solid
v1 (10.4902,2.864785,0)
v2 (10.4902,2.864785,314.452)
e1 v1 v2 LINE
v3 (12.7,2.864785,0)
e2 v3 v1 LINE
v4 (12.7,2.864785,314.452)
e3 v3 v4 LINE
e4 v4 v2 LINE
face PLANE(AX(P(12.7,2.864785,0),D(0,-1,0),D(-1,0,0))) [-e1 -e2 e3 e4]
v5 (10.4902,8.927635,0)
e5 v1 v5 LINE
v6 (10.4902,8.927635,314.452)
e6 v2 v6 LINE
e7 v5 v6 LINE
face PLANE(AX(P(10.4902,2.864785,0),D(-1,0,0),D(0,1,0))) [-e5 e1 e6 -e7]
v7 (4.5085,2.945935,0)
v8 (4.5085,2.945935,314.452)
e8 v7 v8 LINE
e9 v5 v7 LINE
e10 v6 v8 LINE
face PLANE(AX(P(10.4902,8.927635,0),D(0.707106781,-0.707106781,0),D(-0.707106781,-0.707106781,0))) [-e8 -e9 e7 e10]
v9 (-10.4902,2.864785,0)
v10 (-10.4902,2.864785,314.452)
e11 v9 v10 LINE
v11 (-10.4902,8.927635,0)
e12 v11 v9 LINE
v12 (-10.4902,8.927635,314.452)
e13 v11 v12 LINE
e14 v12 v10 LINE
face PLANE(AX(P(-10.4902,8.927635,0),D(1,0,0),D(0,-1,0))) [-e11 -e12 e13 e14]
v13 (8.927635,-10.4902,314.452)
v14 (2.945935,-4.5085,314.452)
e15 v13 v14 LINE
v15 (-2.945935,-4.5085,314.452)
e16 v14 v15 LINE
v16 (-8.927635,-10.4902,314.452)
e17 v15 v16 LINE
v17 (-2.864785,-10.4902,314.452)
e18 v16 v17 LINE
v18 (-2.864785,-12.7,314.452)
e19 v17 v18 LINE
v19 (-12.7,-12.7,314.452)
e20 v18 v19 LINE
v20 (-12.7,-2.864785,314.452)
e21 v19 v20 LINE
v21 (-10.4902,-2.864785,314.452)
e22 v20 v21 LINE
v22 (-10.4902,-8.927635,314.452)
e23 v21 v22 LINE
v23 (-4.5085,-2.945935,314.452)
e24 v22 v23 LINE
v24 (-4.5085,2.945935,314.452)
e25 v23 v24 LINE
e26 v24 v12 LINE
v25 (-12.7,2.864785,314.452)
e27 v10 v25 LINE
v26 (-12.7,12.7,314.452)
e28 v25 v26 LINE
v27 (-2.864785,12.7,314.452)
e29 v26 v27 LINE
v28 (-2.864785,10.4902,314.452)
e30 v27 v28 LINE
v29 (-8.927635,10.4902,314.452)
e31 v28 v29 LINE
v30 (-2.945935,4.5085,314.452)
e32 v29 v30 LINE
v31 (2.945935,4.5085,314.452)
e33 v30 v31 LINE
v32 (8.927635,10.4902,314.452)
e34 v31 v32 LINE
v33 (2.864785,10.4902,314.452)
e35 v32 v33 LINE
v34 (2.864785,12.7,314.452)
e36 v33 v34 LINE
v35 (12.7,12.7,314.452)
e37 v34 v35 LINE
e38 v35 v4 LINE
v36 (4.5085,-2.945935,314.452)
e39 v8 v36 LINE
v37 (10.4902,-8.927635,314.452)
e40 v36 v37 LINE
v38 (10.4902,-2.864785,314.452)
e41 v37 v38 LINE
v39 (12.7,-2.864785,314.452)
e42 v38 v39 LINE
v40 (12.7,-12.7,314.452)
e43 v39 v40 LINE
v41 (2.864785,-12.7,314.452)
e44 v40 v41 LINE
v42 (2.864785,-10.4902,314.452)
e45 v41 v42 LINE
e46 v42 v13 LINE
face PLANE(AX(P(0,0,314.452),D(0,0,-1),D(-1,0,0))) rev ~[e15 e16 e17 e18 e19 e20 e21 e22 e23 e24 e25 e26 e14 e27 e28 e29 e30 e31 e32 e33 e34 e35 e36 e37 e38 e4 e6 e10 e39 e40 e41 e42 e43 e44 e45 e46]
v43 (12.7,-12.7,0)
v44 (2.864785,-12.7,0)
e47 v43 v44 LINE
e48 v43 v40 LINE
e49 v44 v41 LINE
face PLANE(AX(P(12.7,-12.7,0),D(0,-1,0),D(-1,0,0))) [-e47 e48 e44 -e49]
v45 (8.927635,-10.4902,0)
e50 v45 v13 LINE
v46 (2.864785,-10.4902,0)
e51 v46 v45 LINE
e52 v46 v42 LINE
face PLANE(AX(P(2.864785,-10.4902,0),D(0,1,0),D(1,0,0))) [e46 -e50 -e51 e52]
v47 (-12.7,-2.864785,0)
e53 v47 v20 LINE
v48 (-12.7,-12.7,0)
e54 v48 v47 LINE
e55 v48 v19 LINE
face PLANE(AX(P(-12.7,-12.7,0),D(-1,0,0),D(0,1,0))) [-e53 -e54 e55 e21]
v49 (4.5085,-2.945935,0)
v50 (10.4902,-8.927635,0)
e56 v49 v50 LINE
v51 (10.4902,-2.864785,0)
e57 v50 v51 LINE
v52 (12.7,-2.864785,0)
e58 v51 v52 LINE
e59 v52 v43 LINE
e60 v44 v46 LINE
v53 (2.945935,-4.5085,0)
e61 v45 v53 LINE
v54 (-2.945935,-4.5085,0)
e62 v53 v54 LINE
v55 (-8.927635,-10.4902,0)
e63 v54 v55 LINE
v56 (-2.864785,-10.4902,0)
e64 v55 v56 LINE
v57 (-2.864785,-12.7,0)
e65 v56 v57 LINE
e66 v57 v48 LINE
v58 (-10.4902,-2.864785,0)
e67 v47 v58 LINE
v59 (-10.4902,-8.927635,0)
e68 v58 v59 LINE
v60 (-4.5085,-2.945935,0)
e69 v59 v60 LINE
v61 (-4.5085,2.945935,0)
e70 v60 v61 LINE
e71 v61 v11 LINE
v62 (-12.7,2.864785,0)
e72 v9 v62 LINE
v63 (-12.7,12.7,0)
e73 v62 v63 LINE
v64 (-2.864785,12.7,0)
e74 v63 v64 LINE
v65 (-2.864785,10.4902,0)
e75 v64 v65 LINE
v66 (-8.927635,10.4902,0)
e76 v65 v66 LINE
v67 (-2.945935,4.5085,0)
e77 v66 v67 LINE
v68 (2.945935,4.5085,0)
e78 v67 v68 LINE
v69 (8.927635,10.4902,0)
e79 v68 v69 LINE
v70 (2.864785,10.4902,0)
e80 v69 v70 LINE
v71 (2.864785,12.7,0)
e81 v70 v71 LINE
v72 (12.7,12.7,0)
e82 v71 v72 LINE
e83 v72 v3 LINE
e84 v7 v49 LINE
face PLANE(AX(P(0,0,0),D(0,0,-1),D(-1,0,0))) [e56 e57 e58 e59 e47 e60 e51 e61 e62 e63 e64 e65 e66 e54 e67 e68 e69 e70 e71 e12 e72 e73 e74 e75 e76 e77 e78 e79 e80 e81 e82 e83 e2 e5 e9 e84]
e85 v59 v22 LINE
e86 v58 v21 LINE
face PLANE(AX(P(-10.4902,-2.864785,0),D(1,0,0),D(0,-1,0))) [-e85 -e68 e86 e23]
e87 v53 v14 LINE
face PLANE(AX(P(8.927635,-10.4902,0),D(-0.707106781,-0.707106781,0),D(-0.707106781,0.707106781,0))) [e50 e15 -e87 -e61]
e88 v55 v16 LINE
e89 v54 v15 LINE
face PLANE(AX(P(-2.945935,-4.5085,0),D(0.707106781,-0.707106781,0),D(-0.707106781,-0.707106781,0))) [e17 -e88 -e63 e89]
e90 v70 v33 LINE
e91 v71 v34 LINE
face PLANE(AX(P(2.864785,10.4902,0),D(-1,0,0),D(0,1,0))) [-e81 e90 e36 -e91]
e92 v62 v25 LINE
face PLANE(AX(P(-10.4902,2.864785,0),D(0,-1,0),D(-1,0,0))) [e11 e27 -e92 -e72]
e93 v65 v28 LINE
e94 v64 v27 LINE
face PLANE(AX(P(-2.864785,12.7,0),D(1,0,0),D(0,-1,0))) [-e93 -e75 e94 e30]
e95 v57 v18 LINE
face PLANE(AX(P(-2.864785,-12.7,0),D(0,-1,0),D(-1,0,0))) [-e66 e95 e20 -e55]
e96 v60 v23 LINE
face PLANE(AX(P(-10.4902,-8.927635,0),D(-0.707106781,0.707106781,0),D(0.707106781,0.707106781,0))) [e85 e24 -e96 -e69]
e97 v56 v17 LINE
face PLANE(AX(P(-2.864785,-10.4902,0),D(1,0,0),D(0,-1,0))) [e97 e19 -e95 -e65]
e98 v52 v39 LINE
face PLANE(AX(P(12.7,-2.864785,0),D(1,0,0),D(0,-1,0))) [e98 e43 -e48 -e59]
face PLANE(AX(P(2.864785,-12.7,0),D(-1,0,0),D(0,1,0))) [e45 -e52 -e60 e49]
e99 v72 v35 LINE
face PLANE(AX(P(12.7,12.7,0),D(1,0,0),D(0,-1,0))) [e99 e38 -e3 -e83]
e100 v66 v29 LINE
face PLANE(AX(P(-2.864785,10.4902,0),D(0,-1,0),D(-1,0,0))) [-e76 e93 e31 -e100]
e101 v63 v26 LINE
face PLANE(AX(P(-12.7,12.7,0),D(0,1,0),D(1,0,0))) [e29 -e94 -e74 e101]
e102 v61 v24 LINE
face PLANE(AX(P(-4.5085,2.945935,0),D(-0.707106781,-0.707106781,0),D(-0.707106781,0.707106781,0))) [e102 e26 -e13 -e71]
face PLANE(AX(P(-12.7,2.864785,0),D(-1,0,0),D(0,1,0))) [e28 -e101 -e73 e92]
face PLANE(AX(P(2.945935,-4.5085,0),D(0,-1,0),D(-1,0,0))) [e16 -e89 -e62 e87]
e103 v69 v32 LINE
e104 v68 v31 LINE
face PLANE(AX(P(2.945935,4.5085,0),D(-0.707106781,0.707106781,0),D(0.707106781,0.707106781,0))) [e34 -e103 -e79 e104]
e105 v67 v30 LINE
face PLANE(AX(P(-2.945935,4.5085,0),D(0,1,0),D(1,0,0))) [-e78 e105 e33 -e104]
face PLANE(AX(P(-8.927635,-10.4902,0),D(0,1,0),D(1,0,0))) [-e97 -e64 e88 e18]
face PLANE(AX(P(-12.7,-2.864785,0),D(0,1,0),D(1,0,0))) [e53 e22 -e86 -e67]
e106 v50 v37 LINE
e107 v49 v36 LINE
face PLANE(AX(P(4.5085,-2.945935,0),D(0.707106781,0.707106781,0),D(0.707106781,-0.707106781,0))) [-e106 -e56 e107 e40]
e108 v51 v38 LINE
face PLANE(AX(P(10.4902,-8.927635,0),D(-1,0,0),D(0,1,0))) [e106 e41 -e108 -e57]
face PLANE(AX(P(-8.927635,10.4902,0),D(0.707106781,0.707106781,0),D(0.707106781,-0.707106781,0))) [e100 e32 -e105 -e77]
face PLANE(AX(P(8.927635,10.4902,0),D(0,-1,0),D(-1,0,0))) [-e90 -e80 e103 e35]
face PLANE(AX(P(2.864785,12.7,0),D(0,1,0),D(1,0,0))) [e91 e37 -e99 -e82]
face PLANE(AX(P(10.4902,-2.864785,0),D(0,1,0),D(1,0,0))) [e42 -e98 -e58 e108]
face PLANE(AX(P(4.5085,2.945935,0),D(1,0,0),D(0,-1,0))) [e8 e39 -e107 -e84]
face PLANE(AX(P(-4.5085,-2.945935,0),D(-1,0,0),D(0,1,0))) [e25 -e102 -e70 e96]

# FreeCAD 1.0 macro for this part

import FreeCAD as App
import Part
import Sketcher
from FreeCAD import Vector
Q = App.Units.Quantity

doc = App.newDocument("Part")
body = doc.addObject("PartDesign::Body", "Body")

sketch1 = doc.addObject("Sketcher::SketchObject", "Sketch")
body.addObject(sketch1)
sketch1.AttachmentSupport = (doc.XY_Plane, [""])
sketch1.MapMode = "FlatFace"
sketch1.addGeometry([
    Part.LineSegment(Vector(-2.9, 12.7, 0), Vector(-12.7, 12.7, 0)),
    Part.LineSegment(Vector(-12.7, 12.7, 0), Vector(-12.7, 2.9, 0)),
    Part.LineSegment(Vector(-12.7, 2.9, 0), Vector(-10.5, 2.9, 0)),
    Part.LineSegment(Vector(-10.5, 2.9, 0), Vector(-10.5, 8.9, 0)),
    Part.LineSegment(Vector(-10.5, 8.9, 0), Vector(-4.5, 2.9, 0)),
    Part.LineSegment(Vector(-4.5, 2.9, 0), Vector(-4.5, -2.9, 0)),
    Part.LineSegment(Vector(-4.5, -2.9, 0), Vector(-10.5, -8.9, 0)),
    Part.LineSegment(Vector(-10.5, -8.9, 0), Vector(-10.5, -2.9, 0)),
    Part.LineSegment(Vector(-10.5, -2.9, 0), Vector(-12.7, -2.9, 0)),
    Part.LineSegment(Vector(-12.7, -2.9, 0), Vector(-12.7, -12.7, 0)),
    Part.LineSegment(Vector(-12.7, -12.7, 0), Vector(-2.9, -12.7, 0)),
    Part.LineSegment(Vector(-2.9, -12.7, 0), Vector(-2.9, -10.5, 0)),
    Part.LineSegment(Vector(-2.9, -10.5, 0), Vector(-8.9, -10.5, 0)),
    Part.LineSegment(Vector(-8.9, -10.5, 0), Vector(-2.9, -4.5, 0)),
    Part.LineSegment(Vector(-2.9, -4.5, 0), Vector(2.9, -4.5, 0)),
    Part.LineSegment(Vector(2.9, -4.5, 0), Vector(8.9, -10.5, 0)),
    Part.LineSegment(Vector(8.9, -10.5, 0), Vector(2.9, -10.5, 0)),
    Part.LineSegment(Vector(2.9, -10.5, 0), Vector(2.9, -12.7, 0)),
    Part.LineSegment(Vector(2.9, -12.7, 0), Vector(12.7, -12.7, 0)),
    Part.LineSegment(Vector(12.7, -12.7, 0), Vector(12.7, -2.9, 0)),
    Part.LineSegment(Vector(12.7, -2.9, 0), Vector(10.5, -2.9, 0)),
    Part.LineSegment(Vector(10.5, -2.9, 0), Vector(10.5, -8.9, 0)),
    Part.LineSegment(Vector(10.5, -8.9, 0), Vector(4.5, -2.9, 0)),
    Part.LineSegment(Vector(4.5, -2.9, 0), Vector(4.5, 2.9, 0)),
    Part.LineSegment(Vector(4.5, 2.9, 0), Vector(10.5, 8.9, 0)),
    Part.LineSegment(Vector(10.5, 8.9, 0), Vector(10.5, 2.9, 0)),
    Part.LineSegment(Vector(10.5, 2.9, 0), Vector(12.7, 2.9, 0)),
    Part.LineSegment(Vector(12.7, 2.9, 0), Vector(12.7, 12.7, 0)),
    Part.LineSegment(Vector(12.7, 12.7, 0), Vector(2.9, 12.7, 0)),
    Part.LineSegment(Vector(2.9, 12.7, 0), Vector(2.9, 10.5, 0)),
    Part.LineSegment(Vector(2.9, 10.5, 0), Vector(8.9, 10.5, 0)),
    Part.LineSegment(Vector(8.9, 10.5, 0), Vector(2.9, 4.5, 0)),
    Part.LineSegment(Vector(2.9, 4.5, 0), Vector(-2.9, 4.5, 0)),
    Part.LineSegment(Vector(-2.9, 4.5, 0), Vector(-8.9, 10.5, 0)),
    Part.LineSegment(Vector(-8.9, 10.5, 0), Vector(-2.9, 10.5, 0)),
    Part.LineSegment(Vector(-2.9, 10.5, 0), Vector(-2.9, 12.7, 0)),
], False)
sketch1.addConstraint([
    Sketcher.Constraint("Coincident", 0, 2, 1, 1),
    Sketcher.Constraint("Coincident", 1, 2, 2, 1),
    Sketcher.Constraint("Coincident", 2, 2, 3, 1),
    Sketcher.Constraint("Coincident", 3, 2, 4, 1),
    Sketcher.Constraint("Coincident", 4, 2, 5, 1),
    Sketcher.Constraint("Coincident", 5, 2, 6, 1),
    Sketcher.Constraint("Coincident", 6, 2, 7, 1),
    Sketcher.Constraint("Coincident", 7, 2, 8, 1),
    Sketcher.Constraint("Coincident", 8, 2, 9, 1),
    Sketcher.Constraint("Coincident", 9, 2, 10, 1),
    Sketcher.Constraint("Coincident", 10, 2, 11, 1),
    Sketcher.Constraint("Coincident", 11, 2, 12, 1),
    Sketcher.Constraint("Coincident", 12, 2, 13, 1),
    Sketcher.Constraint("Coincident", 13, 2, 14, 1),
    Sketcher.Constraint("Coincident", 14, 2, 15, 1),
    Sketcher.Constraint("Coincident", 15, 2, 16, 1),
    Sketcher.Constraint("Coincident", 16, 2, 17, 1),
    Sketcher.Constraint("Coincident", 17, 2, 18, 1),
    Sketcher.Constraint("Coincident", 18, 2, 19, 1),
    Sketcher.Constraint("Coincident", 19, 2, 20, 1),
    Sketcher.Constraint("Coincident", 20, 2, 21, 1),
    Sketcher.Constraint("Coincident", 21, 2, 22, 1),
    Sketcher.Constraint("Coincident", 22, 2, 23, 1),
    Sketcher.Constraint("Coincident", 23, 2, 24, 1),
    Sketcher.Constraint("Coincident", 24, 2, 25, 1),
    Sketcher.Constraint("Coincident", 25, 2, 26, 1),
    Sketcher.Constraint("Coincident", 26, 2, 27, 1),
    Sketcher.Constraint("Coincident", 27, 2, 28, 1),
    Sketcher.Constraint("Coincident", 28, 2, 29, 1),
    Sketcher.Constraint("Coincident", 29, 2, 30, 1),
    Sketcher.Constraint("Coincident", 30, 2, 31, 1),
    Sketcher.Constraint("Coincident", 31, 2, 32, 1),
    Sketcher.Constraint("Coincident", 32, 2, 33, 1),
    Sketcher.Constraint("Coincident", 33, 2, 34, 1),
    Sketcher.Constraint("Coincident", 34, 2, 35, 1),
    Sketcher.Constraint("Coincident", 35, 2, 0, 1),
    Sketcher.Constraint("Horizontal", 0),
    Sketcher.Constraint("Vertical", 1),
    Sketcher.Constraint("Horizontal", 2),
    Sketcher.Constraint("Vertical", 3),
    Sketcher.Constraint("Vertical", 5),
    Sketcher.Constraint("Vertical", 7),
    Sketcher.Constraint("Horizontal", 8),
    Sketcher.Constraint("Vertical", 9),
    Sketcher.Constraint("Horizontal", 10),
    Sketcher.Constraint("Vertical", 11),
    Sketcher.Constraint("Horizontal", 12),
    Sketcher.Constraint("Horizontal", 14),
    Sketcher.Constraint("Horizontal", 16),
    Sketcher.Constraint("Vertical", 17),
    Sketcher.Constraint("Horizontal", 18),
    Sketcher.Constraint("Vertical", 19),
    Sketcher.Constraint("Horizontal", 20),
    Sketcher.Constraint("Vertical", 21),
    Sketcher.Constraint("Vertical", 23),
    Sketcher.Constraint("Vertical", 25),
    Sketcher.Constraint("Horizontal", 26),
    Sketcher.Constraint("Vertical", 27),
    Sketcher.Constraint("Horizontal", 28),
    Sketcher.Constraint("Vertical", 29),
    Sketcher.Constraint("Horizontal", 30),
    Sketcher.Constraint("Horizontal", 32),
    Sketcher.Constraint("Horizontal", 34),
    Sketcher.Constraint("Vertical", 35),
    Sketcher.Constraint("Symmetric", 0, 2, 18, 2, -1, 1),
    Sketcher.Constraint("Symmetric", 2, 2, 20, 2, -1, 1),
    Sketcher.Constraint("Symmetric", 4, 2, 22, 2, -1, 1),
    Sketcher.Constraint("Symmetric", 6, 2, 24, 2, -1, 1),
    Sketcher.Constraint("Symmetric", 8, 2, 26, 2, -1, 1),
    Sketcher.Constraint("Symmetric", 10, 2, 28, 2, -1, 1),
    Sketcher.Constraint("Symmetric", 12, 2, 30, 2, -1, 1),
    Sketcher.Constraint("Symmetric", 13, 2, 31, 2, -1, 1),
    Sketcher.Constraint("Symmetric", 15, 2, 33, 2, -1, 1),
    Sketcher.Constraint("Symmetric", 12, 2, 15, 2, -2),
    Sketcher.Constraint("Symmetric", 10, 2, 17, 2, -2),
    Sketcher.Constraint("Symmetric", 8, 2, 19, 2, -2),
    Sketcher.Constraint("Symmetric", 6, 2, 21, 2, -2),
    Sketcher.Constraint("Perpendicular", 4, 6),
    Sketcher.Constraint("Parallel", 6, 13),
    Sketcher.Constraint("Perpendicular", 13, 15),
    Sketcher.Constraint("Parallel", 15, 22),
    Sketcher.Constraint("Perpendicular", 22, 24),
    Sketcher.Constraint("Perpendicular", 31, 33),
    Sketcher.Constraint("Horizontal", 5, 2, 22, 2),
    Sketcher.Constraint("Vertical", 11, 2, 34, 2),
    Sketcher.Constraint("Equal", 28, 1),
    Sketcher.Constraint("Equal", 34, 3),
    Sketcher.Constraint("Equal", 32, 5),
    Sketcher.Constraint("Equal", 26, 11),
    Sketcher.Constraint("Equal", 6, 13),
    Sketcher.Constraint("DistanceX", 0, 2, -1, 1, Q("0.5 in")),
    Sketcher.Constraint("DistanceX", 2, 1, 2, 2, Q("0.087 in")),
    Sketcher.Constraint("DistanceX", 4, 2, 23, 2, Q("0.355 in")),
    Sketcher.Constraint("DistanceX", 12, 2, 12, 1, 6.06285),
    Sketcher.Constraint("DistanceX", 14, 1, 14, 2, 5.891871),
])
pad1 = doc.addObject("PartDesign::Pad", "Pad")
body.addObject(pad1)
pad1.Profile = sketch1
pad1.Length = Q("12.38 in")

doc.recompute()
